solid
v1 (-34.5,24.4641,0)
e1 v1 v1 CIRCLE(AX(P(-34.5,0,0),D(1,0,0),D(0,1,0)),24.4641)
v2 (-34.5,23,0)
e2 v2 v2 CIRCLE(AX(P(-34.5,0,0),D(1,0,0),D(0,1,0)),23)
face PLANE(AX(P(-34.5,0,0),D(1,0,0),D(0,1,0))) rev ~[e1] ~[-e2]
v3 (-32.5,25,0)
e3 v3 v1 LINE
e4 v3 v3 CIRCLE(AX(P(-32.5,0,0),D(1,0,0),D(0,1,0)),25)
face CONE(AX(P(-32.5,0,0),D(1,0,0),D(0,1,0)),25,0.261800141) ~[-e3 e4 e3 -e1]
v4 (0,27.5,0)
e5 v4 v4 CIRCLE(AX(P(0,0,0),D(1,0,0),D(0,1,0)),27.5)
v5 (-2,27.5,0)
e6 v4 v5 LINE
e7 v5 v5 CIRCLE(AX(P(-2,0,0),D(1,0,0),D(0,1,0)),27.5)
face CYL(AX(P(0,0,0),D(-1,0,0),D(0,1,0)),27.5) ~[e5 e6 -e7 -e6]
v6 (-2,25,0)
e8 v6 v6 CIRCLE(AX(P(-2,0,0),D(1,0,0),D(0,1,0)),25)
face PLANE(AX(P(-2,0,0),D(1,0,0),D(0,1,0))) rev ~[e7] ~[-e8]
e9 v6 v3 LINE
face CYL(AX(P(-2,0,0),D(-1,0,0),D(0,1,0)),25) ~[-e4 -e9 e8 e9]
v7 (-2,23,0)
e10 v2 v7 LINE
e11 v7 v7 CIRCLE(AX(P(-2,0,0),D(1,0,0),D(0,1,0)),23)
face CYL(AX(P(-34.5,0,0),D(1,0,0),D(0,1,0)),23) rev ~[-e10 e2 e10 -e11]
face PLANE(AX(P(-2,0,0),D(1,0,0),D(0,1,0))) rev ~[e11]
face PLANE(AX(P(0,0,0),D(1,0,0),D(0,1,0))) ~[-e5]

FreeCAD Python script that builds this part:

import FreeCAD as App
import Part
import Sketcher
Q = App.Units.Quantity


def add_polygon(sketch, points):
    """Adds a closed chain of lines whose ends are joined by coincident constraints."""
    first, n = sketch.GeometryCount, len(points)
    for a, b in zip(points, points[1:] + points[:1]):
        sketch.addGeometry(Part.LineSegment(App.Vector(*a, 0), App.Vector(*b, 0)), False)
    for i in range(n):
        sketch.addConstraint(Sketcher.Constraint("Coincident", first + i, 2, first + (i + 1) % n, 1))

doc = App.newDocument("Part")
params = doc.addObject("Spreadsheet::Sheet", "Params")
for row, (alias, value) in enumerate([
    ("sketch1_width", "2 mm"),
    ("sketch1_height", "23 mm"),
    ("sketch1_width2", "32.5 mm"),
    ("sketch1_height2", "27.5 mm"),
    ("revolution_angle", "360 deg"),
], start=1):
    params.set(f"A{row}", alias)
    params.set(f"B{row}", "=" + value)
    params.setAlias(f"B{row}", alias)

body = doc.addObject("PartDesign::Body", "Body")

# Sketch on XY plane
sketch1 = doc.addObject("Sketcher::SketchObject", "Sketch")
body.addObject(sketch1)
sketch1.AttachmentSupport = (doc.XY_Plane, [""])
sketch1.MapMode = "FlatFace"
add_polygon(sketch1, [(-2, 0), (0, 0), (0, 27.5), (-2, 27.5), (-2, 25), (-32.5, 25), (-34.5, 24.5), (-34.5, 23), (-2, 23)])  # lines 0-8
sketch1.addConstraint(Sketcher.Constraint("Horizontal", 0))
sketch1.addConstraint(Sketcher.Constraint("Vertical", 1))
sketch1.addConstraint(Sketcher.Constraint("Horizontal", 2))
sketch1.addConstraint(Sketcher.Constraint("Vertical", 3))
sketch1.addConstraint(Sketcher.Constraint("Horizontal", 4))
sketch1.addConstraint(Sketcher.Constraint("Vertical", 6))
sketch1.addConstraint(Sketcher.Constraint("Horizontal", 7))
sketch1.addConstraint(Sketcher.Constraint("Vertical", 8))
sketch1.addConstraint(Sketcher.Constraint("Coincident", 0, 2, -1, 1))
sketch1.addConstraint(Sketcher.Constraint("Vertical", 3, 2, 7, 2))
sketch1.addConstraint(Sketcher.Constraint("DistanceX", 0, 1, 0, 2, Q("2 mm")))
sketch1.addConstraint(Sketcher.Constraint("DistanceY", 8, 2, 8, 1, Q("23 mm")))
sketch1.addConstraint(Sketcher.Constraint("DistanceX", 7, 1, 7, 2, Q("32.5 mm")))
sketch1.addConstraint(Sketcher.Constraint("DistanceY", 1, 1, 1, 2, Q("27.5 mm")))
sketch1.addConstraint(Sketcher.Constraint("DistanceY", -1, 1, 3, 2, Q("25 mm")))
sketch1.addConstraint(Sketcher.Constraint("DistanceX", 5, 2, 4, 2, Q("2 mm")))
sketch1.addConstraint(Sketcher.Constraint("Angle", 5, Q("-165 deg")))
sketch1.setExpression("Constraints[19]", "Params.sketch1_width")
sketch1.setExpression("Constraints[20]", "Params.sketch1_height")
sketch1.setExpression("Constraints[21]", "Params.sketch1_width2")
sketch1.setExpression("Constraints[22]", "Params.sketch1_height2")
revolution = doc.addObject("PartDesign::Revolution", "Revolution")
body.addObject(revolution)
revolution.Profile = sketch1
revolution.ReferenceAxis = (sketch1, ["H_Axis"])
revolution.setExpression("Angle", "Params.revolution_angle")

doc.recompute()
